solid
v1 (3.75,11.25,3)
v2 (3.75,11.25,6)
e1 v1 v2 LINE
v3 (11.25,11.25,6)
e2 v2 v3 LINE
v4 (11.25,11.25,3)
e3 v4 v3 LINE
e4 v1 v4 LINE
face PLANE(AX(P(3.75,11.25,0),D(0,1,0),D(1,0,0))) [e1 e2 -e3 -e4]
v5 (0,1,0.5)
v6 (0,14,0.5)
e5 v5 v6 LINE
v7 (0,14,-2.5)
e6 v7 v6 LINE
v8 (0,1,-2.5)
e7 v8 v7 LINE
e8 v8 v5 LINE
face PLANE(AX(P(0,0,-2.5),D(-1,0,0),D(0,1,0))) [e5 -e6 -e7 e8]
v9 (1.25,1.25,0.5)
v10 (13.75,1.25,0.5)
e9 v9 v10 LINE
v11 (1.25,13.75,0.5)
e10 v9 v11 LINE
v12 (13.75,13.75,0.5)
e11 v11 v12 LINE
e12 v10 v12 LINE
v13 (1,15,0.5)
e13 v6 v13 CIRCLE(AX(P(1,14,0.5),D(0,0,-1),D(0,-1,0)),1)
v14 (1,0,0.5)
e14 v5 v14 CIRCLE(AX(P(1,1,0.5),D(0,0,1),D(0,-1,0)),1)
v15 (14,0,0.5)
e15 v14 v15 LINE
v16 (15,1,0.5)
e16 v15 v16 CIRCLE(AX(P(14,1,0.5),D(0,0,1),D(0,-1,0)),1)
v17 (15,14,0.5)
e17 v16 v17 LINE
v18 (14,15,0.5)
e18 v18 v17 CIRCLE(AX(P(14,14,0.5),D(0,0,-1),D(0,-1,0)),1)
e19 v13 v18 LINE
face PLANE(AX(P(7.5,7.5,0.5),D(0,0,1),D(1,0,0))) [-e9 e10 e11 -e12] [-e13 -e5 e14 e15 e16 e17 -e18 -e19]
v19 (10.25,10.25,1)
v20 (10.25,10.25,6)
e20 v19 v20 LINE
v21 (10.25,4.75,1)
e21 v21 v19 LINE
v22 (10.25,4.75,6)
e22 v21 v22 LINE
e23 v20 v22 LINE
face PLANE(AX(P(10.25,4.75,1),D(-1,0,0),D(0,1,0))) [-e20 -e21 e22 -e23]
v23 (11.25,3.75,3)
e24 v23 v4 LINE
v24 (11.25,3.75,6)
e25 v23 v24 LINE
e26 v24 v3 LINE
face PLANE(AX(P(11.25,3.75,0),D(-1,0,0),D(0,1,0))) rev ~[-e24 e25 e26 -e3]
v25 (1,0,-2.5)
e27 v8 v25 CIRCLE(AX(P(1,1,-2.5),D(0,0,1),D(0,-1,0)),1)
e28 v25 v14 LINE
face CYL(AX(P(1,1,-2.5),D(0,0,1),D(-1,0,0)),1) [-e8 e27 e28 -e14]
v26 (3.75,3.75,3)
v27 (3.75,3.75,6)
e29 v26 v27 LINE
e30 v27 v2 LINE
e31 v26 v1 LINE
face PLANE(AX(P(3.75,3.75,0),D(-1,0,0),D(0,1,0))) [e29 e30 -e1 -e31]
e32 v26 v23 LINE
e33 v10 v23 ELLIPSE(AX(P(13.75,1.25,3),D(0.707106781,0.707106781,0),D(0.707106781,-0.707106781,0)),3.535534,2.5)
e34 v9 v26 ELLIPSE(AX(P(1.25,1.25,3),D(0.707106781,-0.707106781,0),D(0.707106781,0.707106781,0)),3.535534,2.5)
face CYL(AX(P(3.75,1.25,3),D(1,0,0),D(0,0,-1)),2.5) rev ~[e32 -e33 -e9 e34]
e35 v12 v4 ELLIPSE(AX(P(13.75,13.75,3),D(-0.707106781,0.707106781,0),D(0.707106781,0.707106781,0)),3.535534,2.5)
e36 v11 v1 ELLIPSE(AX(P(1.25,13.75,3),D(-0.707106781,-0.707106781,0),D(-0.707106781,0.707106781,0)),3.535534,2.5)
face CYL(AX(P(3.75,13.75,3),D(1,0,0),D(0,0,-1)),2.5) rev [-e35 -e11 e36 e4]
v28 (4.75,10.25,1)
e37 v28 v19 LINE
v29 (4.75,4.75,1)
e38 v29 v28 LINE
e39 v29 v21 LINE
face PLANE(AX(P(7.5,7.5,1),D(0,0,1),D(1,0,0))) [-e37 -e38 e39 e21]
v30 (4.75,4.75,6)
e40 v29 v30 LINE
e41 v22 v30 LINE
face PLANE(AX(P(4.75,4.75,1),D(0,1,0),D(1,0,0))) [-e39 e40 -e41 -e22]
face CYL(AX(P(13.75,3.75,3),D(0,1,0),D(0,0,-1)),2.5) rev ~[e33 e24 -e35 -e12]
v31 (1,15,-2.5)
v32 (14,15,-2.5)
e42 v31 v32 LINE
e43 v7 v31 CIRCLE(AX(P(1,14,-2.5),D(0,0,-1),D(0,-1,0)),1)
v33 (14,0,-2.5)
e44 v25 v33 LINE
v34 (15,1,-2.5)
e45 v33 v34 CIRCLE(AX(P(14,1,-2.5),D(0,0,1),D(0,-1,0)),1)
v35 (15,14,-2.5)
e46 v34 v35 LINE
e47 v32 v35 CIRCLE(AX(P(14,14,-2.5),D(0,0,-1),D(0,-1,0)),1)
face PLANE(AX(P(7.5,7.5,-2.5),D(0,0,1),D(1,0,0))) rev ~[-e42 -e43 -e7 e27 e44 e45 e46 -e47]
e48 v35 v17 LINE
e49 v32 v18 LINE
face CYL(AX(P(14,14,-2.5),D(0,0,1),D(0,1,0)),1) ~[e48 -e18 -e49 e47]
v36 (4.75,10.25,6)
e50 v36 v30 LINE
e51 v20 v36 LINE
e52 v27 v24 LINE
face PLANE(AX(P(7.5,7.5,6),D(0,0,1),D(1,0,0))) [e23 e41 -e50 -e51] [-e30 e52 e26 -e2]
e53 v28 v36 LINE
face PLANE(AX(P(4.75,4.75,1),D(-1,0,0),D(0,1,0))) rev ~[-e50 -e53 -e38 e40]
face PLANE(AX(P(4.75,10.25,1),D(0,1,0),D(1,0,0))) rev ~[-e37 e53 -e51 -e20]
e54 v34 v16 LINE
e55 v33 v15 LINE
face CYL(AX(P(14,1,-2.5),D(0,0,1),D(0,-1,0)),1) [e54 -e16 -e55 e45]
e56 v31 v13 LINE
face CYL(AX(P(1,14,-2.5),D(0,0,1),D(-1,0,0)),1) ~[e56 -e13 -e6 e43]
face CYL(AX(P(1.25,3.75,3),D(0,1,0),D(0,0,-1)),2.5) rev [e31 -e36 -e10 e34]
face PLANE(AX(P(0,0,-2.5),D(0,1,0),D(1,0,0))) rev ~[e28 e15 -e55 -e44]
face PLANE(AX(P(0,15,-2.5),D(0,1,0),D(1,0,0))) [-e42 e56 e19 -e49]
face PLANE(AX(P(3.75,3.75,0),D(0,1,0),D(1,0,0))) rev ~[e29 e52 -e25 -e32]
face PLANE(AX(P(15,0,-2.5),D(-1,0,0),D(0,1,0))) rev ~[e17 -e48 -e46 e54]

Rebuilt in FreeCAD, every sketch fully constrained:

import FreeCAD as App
import Part
import Sketcher
Q = App.Units.Quantity


def edges_at(feature, points):
    """Names of the edges that pass closest to the given points."""
    edges = feature.Shape.Edges
    near = lambda p: min(range(len(edges)), key=lambda i: edges[i].distToShape(Part.Vertex(*p))[0])
    return sorted({f"Edge{near(p) + 1}" for p in points})

doc = App.newDocument("Part")
params = doc.addObject("Spreadsheet::Sheet", "Params")
for row, (alias, value) in enumerate([
    ("sketch1_width", "15 mm"),
    ("pad1_length", "3 mm"),
    ("sketch2_width", "5.5 mm"),
    ("pad2_length", "6 mm"),
    ("sketch3_width", "7.5 mm"),
    ("pad3_length", "6 mm"),
    ("fillet_radius", "2.5 mm"),
    ("fillet2_radius", "1 mm"),
], start=1):
    params.set(f"A{row}", alias)
    params.set(f"B{row}", "=" + value)
    params.setAlias(f"B{row}", alias)

body = doc.addObject("PartDesign::Body", "Body")

# Sketch on XY plane
sketch1 = body.newObject("Sketcher::SketchObject", "Sketch")
sketch1.AttachmentSupport = (doc.getObject("XY_Plane"), [""])
sketch1.MapMode = "FlatFace"
sketch1.AttachmentOffset = App.Placement(App.Vector(0, 0, -2.5), App.Rotation())
sketch1.addGeometry([
    Part.LineSegment(App.Vector(0, 15, 0), App.Vector(0, 0, 0)),
    Part.LineSegment(App.Vector(0, 0, 0), App.Vector(15, 0, 0)),
    Part.LineSegment(App.Vector(15, 0, 0), App.Vector(15, 15, 0)),
    Part.LineSegment(App.Vector(15, 15, 0), App.Vector(0, 15, 0)),
], False)
sketch1.addConstraint([
    Sketcher.Constraint("Coincident", 0, 2, 1, 1),
    Sketcher.Constraint("Coincident", 1, 2, 2, 1),
    Sketcher.Constraint("Coincident", 2, 2, 3, 1),
    Sketcher.Constraint("Coincident", 3, 2, 0, 1),
    Sketcher.Constraint("Vertical", 0),
    Sketcher.Constraint("Horizontal", 1),
    Sketcher.Constraint("Vertical", 2),
    Sketcher.Constraint("Horizontal", 3),
    Sketcher.Constraint("Coincident", 0, 2, -1, 1),
    Sketcher.Constraint("Equal", 3, 0),
    Sketcher.Constraint("DistanceX", 1, 1, 1, 2, Q("15 mm")),
])
sketch1.setExpression("Constraints[10]", "Params.sketch1_width")
pad1 = body.newObject("PartDesign::Pad", "Pad")
pad1.Profile = sketch1
pad1.setExpression("Length", "Params.pad1_length")
body2 = doc.addObject("PartDesign::Body", "Body001")

# Sketch on XY plane
sketch2 = body2.newObject("Sketcher::SketchObject", "Sketch001")
sketch2.AttachmentSupport = (doc.getObject("XY_Plane001"), [""])
sketch2.MapMode = "FlatFace"
sketch2.AttachmentOffset = App.Placement(App.Vector(0, 0, 1), App.Rotation())
sketch2.addGeometry([
    Part.LineSegment(App.Vector(1, 6.5, 0), App.Vector(1, 1, 0)),
    Part.LineSegment(App.Vector(1, 1, 0), App.Vector(6.5, 1, 0)),
    Part.LineSegment(App.Vector(6.5, 1, 0), App.Vector(6.5, 6.5, 0)),
    Part.LineSegment(App.Vector(6.5, 6.5, 0), App.Vector(1, 6.5, 0)),
], False)
sketch2.addConstraint([
    Sketcher.Constraint("Coincident", 0, 2, 1, 1),
    Sketcher.Constraint("Coincident", 1, 2, 2, 1),
    Sketcher.Constraint("Coincident", 2, 2, 3, 1),
    Sketcher.Constraint("Coincident", 3, 2, 0, 1),
    Sketcher.Constraint("Vertical", 0),
    Sketcher.Constraint("Horizontal", 1),
    Sketcher.Constraint("Vertical", 2),
    Sketcher.Constraint("Horizontal", 3),
    Sketcher.Constraint("Equal", 3, 0),
    Sketcher.Constraint("DistanceX", 1, 1, 1, 2, Q("5.5 mm")),
    Sketcher.Constraint("DistanceX", -1, 1, 0, 2, Q("1 mm")),
    Sketcher.Constraint("DistanceY", -1, 1, 0, 2, Q("1 mm")),
])
sketch2.setExpression("Constraints[9]", "Params.sketch2_width")
pad2 = body2.newObject("PartDesign::Pad", "Pad001")
pad2.Profile = sketch2
pad2.setExpression("Length", "Params.pad2_length")
body3 = doc.addObject("PartDesign::Body", "Body002")

# Sketch on XY plane
sketch3 = body3.newObject("Sketcher::SketchObject", "Sketch002")
sketch3.AttachmentSupport = (doc.getObject("XY_Plane002"), [""])
sketch3.MapMode = "FlatFace"
sketch3.addGeometry([
    Part.LineSegment(App.Vector(0, 7.5, 0), App.Vector(0, 0, 0)),
    Part.LineSegment(App.Vector(0, 0, 0), App.Vector(7.5, 0, 0)),
    Part.LineSegment(App.Vector(7.5, 0, 0), App.Vector(7.5, 7.5, 0)),
    Part.LineSegment(App.Vector(7.5, 7.5, 0), App.Vector(0, 7.5, 0)),
], False)
sketch3.addConstraint([
    Sketcher.Constraint("Coincident", 0, 2, 1, 1),
    Sketcher.Constraint("Coincident", 1, 2, 2, 1),
    Sketcher.Constraint("Coincident", 2, 2, 3, 1),
    Sketcher.Constraint("Coincident", 3, 2, 0, 1),
    Sketcher.Constraint("Vertical", 0),
    Sketcher.Constraint("Horizontal", 1),
    Sketcher.Constraint("Vertical", 2),
    Sketcher.Constraint("Horizontal", 3),
    Sketcher.Constraint("Coincident", 0, 2, -1, 1),
    Sketcher.Constraint("Equal", 3, 0),
    Sketcher.Constraint("DistanceX", 1, 1, 1, 2, Q("7.5 mm")),
])
sketch3.setExpression("Constraints[10]", "Params.sketch3_width")
pad3 = body3.newObject("PartDesign::Pad", "Pad002")
pad3.Profile = sketch3
pad3.setExpression("Length", "Params.pad3_length")
doc.recompute()

boolean = body3.newObject("PartDesign::Boolean", "Boolean")
boolean.Type = "Cut"
boolean.addObjects([body2])
body4 = doc.addObject("PartDesign::Body", "Body003")
doc.recompute()

body3.Placement = App.Placement(App.Vector(3.75, 3.75, 0), App.Rotation(App.Vector(0, 0, 1), 0))
boolean2 = body4.newObject("PartDesign::Boolean", "Boolean001")
boolean2.Type = "Fuse"
boolean2.addObjects([body3])
doc.recompute()

boolean3 = body4.newObject("PartDesign::Boolean", "Boolean002")
boolean3.Type = "Fuse"
boolean3.addObjects([body])
doc.recompute()

fillet = body4.newObject("PartDesign::Fillet", "Fillet")
fillet.Base = (boolean3, edges_at(boolean3, [
    (3.75, 7.5, 0.5),
    (7.5, 3.75, 0.5),
    (11.25, 7.5, 0.5),
    (7.5, 11.25, 0.5),
]))
fillet.setExpression("Radius", "Params.fillet_radius")
doc.recompute()

fillet2 = body4.newObject("PartDesign::Fillet", "Fillet001")
fillet2.Base = (fillet, edges_at(fillet, [
    (0, 0, -1),
    (0, 15, -1),
    (15, 15, -1),
    (15, 0, -1),
]))
fillet2.setExpression("Radius", "Params.fillet2_radius")

doc.recompute()
